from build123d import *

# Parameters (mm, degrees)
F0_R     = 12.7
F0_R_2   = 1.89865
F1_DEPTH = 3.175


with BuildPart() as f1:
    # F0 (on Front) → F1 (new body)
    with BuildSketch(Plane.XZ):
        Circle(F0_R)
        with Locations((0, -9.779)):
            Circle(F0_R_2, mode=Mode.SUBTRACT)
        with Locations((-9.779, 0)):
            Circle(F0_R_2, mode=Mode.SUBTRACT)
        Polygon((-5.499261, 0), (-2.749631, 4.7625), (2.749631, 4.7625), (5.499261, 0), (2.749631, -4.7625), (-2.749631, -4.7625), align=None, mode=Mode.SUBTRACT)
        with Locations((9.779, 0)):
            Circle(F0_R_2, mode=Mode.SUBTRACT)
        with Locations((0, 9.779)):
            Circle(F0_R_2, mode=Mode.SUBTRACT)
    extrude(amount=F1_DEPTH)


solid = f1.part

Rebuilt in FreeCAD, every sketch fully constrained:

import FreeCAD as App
import Part
import Sketcher
Q = App.Units.Quantity

doc = App.newDocument("Part")
body = doc.addObject("PartDesign::Body", "Body")

# Sketch on XZ plane
sketch1 = doc.addObject("Sketcher::SketchObject", "Sketch")
body.addObject(sketch1)
sketch1.AttachmentSupport = (doc.XZ_Plane, [""])
sketch1.MapMode = "FlatFace"
sketch1.addGeometry(Part.Circle(App.Vector(0, 0, 0), App.Vector(0, 0, 1), 12.7), False)
sketch1.addGeometry(Part.Circle(App.Vector(0, -9.8, 0), App.Vector(0, 0, 1), 1.9), False)
sketch1.addGeometry(Part.Circle(App.Vector(-9.8, 0, 0), App.Vector(0, 0, 1), 1.9), False)
sketch1.addGeometry(Part.LineSegment(App.Vector(-2.7, -4.8, 0), App.Vector(-5.5, 0, 0)), False)
sketch1.addGeometry(Part.LineSegment(App.Vector(-5.5, 0, 0), App.Vector(-2.7, 4.8, 0)), False)
sketch1.addGeometry(Part.LineSegment(App.Vector(-2.7, 4.8, 0), App.Vector(2.7, 4.8, 0)), False)
sketch1.addGeometry(Part.LineSegment(App.Vector(2.7, 4.8, 0), App.Vector(5.5, 0, 0)), False)
sketch1.addGeometry(Part.LineSegment(App.Vector(5.5, 0, 0), App.Vector(2.7, -4.8, 0)), False)
sketch1.addGeometry(Part.LineSegment(App.Vector(2.7, -4.8, 0), App.Vector(-2.7, -4.8, 0)), False)
sketch1.addGeometry(Part.Circle(App.Vector(9.8, 0, 0), App.Vector(0, 0, 1), 1.9), False)
sketch1.addGeometry(Part.Circle(App.Vector(0, 9.8, 0), App.Vector(0, 0, 1), 1.9), False)
sketch1.addConstraint(Sketcher.Constraint("Coincident", 3, 2, 4, 1))
sketch1.addConstraint(Sketcher.Constraint("Coincident", 4, 2, 5, 1))
sketch1.addConstraint(Sketcher.Constraint("Coincident", 5, 2, 6, 1))
sketch1.addConstraint(Sketcher.Constraint("Coincident", 6, 2, 7, 1))
sketch1.addConstraint(Sketcher.Constraint("Coincident", 7, 2, 8, 1))
sketch1.addConstraint(Sketcher.Constraint("Coincident", 8, 2, 3, 1))
sketch1.addConstraint(Sketcher.Constraint("Horizontal", 5))
sketch1.addConstraint(Sketcher.Constraint("Horizontal", 8))
sketch1.addConstraint(Sketcher.Constraint("Coincident", 0, 3, -1, 1))
sketch1.addConstraint(Sketcher.Constraint("Equal", 1, 2))
sketch1.addConstraint(Sketcher.Constraint("Equal", 2, 9))
sketch1.addConstraint(Sketcher.Constraint("Equal", 9, 10))
sketch1.addConstraint(Sketcher.Constraint("Symmetric", 2, 3, 9, 3, -1, 1))
sketch1.addConstraint(Sketcher.Constraint("Symmetric", 1, 3, 10, 3, -1, 1))
sketch1.addConstraint(Sketcher.Constraint("Symmetric", 3, 2, 6, 2, -1, 1))
sketch1.addConstraint(Sketcher.Constraint("Symmetric", 4, 2, 7, 2, -1, 1))
sketch1.addConstraint(Sketcher.Constraint("PointOnObject", 1, 3, -2))
sketch1.addConstraint(Sketcher.Constraint("PointOnObject", 2, 3, -1))
sketch1.addConstraint(Sketcher.Constraint("PointOnObject", 3, 2, -1))
sketch1.addConstraint(Sketcher.Constraint("Parallel", 3, 6))
sketch1.addConstraint(Sketcher.Constraint("Vertical", 5, 2, 7, 2))
sketch1.addConstraint(Sketcher.Constraint("Diameter", 0, Q("1 in")))
sketch1.addConstraint(Sketcher.Constraint("Angle", 3, Q("119.999994 deg")))
sketch1.addConstraint(Sketcher.Constraint("Diameter", 1, Q("0.1495 in")))
sketch1.addConstraint(Sketcher.Constraint("DistanceX", 2, 3, 9, 3, Q("0.77 in")))
sketch1.addConstraint(Sketcher.Constraint("DistanceY", 1, 3, 10, 3, Q("0.77 in")))
sketch1.addConstraint(Sketcher.Constraint("DistanceY", -1, 1, 4, 2, Q("0.1875 in")))
sketch1.addConstraint(Sketcher.Constraint("DistanceX", 5, 1, 5, 2, Q("5.499262 mm")))
pad1 = doc.addObject("PartDesign::Pad", "Pad")
body.addObject(pad1)
pad1.Profile = sketch1
pad1.Length = Q("0.125 in")

doc.recompute()
